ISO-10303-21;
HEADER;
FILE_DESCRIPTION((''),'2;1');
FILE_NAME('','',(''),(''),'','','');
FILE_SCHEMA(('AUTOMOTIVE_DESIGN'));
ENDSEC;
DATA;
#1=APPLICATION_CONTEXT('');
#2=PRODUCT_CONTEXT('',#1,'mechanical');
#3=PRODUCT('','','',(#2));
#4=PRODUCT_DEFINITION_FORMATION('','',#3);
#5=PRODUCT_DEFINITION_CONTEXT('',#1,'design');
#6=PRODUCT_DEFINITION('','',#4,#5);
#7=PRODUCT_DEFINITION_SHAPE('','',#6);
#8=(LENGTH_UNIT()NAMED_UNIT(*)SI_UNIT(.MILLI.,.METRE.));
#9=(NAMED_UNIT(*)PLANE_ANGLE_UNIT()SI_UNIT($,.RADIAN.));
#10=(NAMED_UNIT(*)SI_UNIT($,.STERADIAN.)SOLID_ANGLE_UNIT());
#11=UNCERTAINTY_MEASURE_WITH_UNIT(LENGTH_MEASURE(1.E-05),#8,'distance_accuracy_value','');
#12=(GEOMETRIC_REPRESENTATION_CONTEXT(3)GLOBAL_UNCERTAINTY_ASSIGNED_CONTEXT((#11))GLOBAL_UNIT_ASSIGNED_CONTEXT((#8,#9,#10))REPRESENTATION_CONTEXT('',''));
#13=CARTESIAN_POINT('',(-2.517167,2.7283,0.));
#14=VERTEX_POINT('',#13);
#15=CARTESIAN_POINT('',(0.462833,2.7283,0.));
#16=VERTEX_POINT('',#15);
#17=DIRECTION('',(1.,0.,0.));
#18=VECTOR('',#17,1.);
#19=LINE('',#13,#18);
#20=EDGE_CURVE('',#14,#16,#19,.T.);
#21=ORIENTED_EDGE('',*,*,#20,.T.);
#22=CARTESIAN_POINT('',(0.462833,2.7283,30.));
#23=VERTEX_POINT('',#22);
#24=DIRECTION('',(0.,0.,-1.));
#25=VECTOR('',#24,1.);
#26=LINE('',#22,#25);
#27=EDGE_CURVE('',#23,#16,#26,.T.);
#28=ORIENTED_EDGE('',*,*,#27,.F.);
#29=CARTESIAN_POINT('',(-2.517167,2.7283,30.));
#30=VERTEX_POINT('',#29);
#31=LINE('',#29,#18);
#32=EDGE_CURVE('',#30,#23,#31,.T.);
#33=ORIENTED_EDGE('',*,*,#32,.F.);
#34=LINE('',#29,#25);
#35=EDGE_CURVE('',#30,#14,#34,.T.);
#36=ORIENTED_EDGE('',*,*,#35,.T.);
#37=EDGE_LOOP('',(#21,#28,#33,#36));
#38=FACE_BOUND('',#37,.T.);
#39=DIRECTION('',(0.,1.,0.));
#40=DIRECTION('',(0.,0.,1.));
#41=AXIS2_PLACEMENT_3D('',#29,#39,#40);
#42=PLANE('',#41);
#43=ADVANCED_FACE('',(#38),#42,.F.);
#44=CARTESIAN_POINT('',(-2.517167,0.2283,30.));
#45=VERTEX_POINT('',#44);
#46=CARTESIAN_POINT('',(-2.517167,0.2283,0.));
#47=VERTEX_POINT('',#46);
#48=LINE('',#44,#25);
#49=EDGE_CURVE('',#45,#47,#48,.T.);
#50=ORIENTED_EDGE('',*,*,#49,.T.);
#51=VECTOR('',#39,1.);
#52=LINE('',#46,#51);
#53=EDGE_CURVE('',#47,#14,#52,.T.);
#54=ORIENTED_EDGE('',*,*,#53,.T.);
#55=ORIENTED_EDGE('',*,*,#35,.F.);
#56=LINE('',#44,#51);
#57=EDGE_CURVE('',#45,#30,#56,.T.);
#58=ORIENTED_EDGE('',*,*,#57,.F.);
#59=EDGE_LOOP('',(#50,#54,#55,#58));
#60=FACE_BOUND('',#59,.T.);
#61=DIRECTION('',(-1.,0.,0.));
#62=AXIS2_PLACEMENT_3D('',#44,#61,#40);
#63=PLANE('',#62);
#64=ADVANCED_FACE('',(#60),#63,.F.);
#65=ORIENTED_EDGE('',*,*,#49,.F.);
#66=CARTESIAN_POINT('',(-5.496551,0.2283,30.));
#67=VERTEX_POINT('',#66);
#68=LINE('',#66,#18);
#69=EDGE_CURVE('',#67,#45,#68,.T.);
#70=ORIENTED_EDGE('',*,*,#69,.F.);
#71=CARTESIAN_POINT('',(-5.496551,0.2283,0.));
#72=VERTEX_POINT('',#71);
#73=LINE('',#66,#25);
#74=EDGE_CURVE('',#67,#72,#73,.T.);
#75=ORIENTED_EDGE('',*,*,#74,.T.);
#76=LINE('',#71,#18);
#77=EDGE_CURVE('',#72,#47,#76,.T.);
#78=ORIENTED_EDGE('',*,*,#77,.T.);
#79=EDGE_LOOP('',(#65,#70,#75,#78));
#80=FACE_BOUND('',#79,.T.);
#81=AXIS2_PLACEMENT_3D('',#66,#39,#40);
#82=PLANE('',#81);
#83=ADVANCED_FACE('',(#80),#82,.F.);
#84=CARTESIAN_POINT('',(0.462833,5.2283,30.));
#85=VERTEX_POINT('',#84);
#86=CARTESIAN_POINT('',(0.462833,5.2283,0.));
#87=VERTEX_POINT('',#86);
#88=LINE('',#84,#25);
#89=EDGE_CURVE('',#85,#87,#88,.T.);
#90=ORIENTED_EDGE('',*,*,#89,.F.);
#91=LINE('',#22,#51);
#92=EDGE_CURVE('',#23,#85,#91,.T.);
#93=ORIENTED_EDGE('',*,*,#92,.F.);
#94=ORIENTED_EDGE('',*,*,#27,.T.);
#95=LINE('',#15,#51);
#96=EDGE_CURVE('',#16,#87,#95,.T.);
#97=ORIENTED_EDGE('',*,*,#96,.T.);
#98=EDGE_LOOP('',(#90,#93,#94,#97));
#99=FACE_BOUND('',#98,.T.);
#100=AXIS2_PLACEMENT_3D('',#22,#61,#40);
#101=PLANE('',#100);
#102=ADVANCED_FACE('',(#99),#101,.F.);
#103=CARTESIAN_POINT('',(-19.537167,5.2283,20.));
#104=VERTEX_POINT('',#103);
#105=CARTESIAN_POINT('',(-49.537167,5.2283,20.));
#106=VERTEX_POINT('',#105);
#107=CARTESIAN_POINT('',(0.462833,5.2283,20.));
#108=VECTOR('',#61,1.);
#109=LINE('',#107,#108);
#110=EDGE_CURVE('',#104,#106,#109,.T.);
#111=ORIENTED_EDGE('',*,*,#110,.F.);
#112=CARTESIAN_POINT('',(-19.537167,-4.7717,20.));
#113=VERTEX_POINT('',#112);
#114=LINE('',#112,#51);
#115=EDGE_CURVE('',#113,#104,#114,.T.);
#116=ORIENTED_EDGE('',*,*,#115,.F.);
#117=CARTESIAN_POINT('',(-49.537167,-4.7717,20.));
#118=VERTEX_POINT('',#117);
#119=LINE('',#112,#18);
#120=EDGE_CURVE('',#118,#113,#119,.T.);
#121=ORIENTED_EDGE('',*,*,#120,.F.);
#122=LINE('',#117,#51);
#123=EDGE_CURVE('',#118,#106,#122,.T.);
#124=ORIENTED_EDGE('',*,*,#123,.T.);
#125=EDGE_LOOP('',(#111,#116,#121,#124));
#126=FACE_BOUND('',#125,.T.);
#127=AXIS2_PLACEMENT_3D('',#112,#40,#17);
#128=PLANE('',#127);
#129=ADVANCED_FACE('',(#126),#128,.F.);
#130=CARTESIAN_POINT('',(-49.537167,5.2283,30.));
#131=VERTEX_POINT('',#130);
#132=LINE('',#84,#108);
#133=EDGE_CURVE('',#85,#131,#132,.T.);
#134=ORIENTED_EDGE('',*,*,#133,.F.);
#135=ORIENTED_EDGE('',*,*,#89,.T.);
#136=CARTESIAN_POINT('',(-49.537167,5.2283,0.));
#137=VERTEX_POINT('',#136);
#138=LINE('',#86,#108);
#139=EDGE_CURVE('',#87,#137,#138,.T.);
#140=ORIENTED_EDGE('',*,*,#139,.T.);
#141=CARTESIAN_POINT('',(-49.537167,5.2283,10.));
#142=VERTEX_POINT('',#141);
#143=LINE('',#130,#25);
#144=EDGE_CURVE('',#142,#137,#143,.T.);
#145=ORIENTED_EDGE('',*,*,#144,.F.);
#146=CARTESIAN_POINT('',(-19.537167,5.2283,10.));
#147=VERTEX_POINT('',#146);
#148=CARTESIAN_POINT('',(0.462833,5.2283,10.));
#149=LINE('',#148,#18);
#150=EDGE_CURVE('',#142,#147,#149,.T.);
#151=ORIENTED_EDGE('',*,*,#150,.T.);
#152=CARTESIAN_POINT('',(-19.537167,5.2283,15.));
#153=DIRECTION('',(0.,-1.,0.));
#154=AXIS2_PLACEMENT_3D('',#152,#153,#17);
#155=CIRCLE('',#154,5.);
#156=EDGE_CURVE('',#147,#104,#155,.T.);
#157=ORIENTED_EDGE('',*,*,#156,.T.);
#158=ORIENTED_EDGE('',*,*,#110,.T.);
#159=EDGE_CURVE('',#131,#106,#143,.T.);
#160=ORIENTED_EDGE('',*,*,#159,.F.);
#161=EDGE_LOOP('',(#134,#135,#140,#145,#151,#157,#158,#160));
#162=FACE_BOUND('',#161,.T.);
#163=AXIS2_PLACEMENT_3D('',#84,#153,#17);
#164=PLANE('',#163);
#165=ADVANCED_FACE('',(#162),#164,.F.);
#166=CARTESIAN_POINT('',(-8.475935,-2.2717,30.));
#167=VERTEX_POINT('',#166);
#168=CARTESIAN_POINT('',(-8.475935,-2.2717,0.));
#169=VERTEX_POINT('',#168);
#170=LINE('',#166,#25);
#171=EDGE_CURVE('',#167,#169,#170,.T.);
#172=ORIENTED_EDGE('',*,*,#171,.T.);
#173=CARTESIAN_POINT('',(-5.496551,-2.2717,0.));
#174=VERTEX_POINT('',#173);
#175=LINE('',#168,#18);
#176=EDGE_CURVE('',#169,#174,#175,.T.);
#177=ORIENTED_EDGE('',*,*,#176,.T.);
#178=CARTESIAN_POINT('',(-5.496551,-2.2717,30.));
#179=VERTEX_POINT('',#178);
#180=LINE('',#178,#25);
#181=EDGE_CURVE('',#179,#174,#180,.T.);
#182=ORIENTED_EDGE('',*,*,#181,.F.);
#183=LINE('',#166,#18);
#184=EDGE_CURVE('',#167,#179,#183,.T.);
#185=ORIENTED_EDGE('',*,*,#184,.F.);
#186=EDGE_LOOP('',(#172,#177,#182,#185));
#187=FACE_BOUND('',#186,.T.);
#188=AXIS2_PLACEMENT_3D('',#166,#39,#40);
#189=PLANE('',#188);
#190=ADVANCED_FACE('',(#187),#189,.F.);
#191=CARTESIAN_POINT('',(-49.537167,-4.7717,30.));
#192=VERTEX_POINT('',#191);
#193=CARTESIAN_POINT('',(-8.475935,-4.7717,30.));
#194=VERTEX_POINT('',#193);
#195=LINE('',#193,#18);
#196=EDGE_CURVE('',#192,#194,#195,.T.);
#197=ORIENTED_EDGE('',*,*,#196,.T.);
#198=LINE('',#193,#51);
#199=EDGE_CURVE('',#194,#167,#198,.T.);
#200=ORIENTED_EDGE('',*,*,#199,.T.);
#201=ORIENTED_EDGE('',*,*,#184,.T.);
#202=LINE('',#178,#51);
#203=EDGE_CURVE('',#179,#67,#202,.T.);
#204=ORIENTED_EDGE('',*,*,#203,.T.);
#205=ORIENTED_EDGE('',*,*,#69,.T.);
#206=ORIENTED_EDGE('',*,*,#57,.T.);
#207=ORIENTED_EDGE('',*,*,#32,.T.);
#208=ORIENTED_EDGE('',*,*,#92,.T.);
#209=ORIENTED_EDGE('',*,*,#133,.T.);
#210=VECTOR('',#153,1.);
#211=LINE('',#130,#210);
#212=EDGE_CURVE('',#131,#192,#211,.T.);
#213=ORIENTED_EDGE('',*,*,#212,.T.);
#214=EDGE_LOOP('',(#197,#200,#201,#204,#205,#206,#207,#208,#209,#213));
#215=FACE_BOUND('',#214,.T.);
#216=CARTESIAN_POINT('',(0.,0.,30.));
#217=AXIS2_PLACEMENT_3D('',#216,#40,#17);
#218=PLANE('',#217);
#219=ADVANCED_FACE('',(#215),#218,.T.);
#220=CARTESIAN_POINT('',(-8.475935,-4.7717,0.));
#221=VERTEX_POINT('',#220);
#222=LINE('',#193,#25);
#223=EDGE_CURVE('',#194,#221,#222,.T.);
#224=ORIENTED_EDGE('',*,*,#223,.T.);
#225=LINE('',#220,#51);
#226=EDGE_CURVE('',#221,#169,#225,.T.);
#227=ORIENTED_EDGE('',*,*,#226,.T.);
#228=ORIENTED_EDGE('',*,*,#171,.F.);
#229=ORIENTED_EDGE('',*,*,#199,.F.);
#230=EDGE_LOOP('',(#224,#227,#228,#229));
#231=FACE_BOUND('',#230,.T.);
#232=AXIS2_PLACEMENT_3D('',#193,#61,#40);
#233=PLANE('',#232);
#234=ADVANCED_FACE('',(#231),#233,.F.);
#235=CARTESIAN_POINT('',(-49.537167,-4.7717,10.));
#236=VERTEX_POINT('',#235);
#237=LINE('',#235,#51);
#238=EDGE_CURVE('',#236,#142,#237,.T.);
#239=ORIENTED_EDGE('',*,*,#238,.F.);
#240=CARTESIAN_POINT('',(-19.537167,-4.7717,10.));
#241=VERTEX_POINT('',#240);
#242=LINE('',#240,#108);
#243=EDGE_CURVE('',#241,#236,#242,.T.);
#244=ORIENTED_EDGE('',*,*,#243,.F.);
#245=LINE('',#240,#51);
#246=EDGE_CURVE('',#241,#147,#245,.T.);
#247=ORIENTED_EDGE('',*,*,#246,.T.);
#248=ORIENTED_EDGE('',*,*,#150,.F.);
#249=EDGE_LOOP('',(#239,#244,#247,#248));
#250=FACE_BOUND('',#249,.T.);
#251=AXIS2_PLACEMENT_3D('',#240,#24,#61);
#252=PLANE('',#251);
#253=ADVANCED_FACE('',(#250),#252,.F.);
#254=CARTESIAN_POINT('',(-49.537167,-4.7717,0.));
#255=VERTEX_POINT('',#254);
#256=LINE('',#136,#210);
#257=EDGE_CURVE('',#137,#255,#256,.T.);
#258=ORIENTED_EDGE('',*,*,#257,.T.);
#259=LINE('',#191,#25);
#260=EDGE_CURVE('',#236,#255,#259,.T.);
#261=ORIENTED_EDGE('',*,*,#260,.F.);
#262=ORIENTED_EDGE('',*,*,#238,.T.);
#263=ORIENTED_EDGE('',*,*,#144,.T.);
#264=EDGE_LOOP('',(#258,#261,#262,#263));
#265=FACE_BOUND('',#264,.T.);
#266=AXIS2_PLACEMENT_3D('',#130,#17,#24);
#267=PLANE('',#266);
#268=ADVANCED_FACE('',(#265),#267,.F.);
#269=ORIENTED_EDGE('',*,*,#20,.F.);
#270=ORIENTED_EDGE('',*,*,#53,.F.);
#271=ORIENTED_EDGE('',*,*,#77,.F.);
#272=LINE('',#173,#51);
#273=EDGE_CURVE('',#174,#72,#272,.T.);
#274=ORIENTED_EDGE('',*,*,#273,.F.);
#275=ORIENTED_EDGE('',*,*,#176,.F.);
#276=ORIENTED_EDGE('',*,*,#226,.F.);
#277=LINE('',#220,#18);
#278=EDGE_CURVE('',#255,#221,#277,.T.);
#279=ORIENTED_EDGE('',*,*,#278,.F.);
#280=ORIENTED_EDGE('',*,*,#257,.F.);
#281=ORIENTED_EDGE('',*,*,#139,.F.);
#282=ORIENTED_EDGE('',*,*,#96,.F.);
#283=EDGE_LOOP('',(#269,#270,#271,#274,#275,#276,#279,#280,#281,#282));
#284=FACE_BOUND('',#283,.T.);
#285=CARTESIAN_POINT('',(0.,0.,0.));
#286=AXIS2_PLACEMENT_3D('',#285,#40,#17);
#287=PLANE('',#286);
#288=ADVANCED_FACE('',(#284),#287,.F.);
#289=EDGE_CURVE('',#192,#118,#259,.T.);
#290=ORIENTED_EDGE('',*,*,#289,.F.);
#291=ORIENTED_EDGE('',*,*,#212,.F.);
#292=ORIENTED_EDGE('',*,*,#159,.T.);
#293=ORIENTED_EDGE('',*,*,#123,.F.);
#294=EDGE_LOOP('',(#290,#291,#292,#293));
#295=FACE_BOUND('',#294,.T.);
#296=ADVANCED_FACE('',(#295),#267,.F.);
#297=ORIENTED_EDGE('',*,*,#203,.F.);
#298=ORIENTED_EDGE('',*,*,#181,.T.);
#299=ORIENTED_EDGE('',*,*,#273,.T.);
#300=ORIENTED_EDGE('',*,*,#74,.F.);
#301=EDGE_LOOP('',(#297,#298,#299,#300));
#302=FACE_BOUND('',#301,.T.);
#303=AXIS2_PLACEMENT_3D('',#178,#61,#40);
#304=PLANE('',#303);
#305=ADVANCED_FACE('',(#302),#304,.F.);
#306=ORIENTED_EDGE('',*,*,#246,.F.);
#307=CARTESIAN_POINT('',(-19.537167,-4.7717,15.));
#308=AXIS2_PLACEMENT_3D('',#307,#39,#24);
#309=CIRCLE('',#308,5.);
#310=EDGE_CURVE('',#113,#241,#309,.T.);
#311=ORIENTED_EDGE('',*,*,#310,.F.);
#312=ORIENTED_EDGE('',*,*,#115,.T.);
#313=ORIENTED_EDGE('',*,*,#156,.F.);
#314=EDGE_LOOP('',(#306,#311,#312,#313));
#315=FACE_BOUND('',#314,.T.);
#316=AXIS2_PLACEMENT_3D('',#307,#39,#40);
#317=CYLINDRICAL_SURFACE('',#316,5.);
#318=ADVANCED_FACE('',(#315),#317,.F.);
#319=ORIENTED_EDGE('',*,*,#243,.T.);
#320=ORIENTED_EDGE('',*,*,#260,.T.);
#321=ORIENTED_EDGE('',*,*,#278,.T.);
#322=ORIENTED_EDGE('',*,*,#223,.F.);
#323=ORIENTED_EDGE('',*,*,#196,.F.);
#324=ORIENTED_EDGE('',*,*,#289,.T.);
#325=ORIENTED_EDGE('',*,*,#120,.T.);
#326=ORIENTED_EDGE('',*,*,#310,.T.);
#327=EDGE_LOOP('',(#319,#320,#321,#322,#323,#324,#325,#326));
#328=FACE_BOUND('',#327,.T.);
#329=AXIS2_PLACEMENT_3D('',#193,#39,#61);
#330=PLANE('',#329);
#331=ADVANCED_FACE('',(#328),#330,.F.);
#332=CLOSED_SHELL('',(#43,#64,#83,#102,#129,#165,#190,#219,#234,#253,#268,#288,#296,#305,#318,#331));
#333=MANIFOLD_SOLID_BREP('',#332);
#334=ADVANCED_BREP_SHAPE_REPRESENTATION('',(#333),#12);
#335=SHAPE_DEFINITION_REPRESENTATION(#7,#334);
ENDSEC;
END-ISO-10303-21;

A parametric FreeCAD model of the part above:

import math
import FreeCAD as App
import Part
import Sketcher
from FreeCAD import Vector
Q = App.Units.Quantity

doc = App.newDocument("Part")
body = doc.addObject("PartDesign::Body", "Body")

sketch1 = body.newObject("Sketcher::SketchObject", "Sketch")
sketch1.AttachmentSupport = (doc.getObject("XY_Plane"), [""])
sketch1.MapMode = "FlatFace"
sketch1.addGeometry([
    Part.LineSegment(Vector(-8.5, -4.8, 0), Vector(-8.5, -2.3, 0)),
    Part.LineSegment(Vector(-8.5, -2.3, 0), Vector(-5.5, -2.3, 0)),
    Part.LineSegment(Vector(-5.5, -2.3, 0), Vector(-5.5, 0.2, 0)),
    Part.LineSegment(Vector(-5.5, 0.2, 0), Vector(-2.5, 0.2, 0)),
    Part.LineSegment(Vector(-2.5, 0.2, 0), Vector(-2.5, 2.7, 0)),
    Part.LineSegment(Vector(-2.5, 2.7, 0), Vector(0.5, 2.7, 0)),
    Part.LineSegment(Vector(0.5, 2.7, 0), Vector(0.5, 5.2, 0)),
    Part.LineSegment(Vector(0.5, 5.2, 0), Vector(-49.5, 5.2, 0)),
    Part.LineSegment(Vector(-49.5, 5.2, 0), Vector(-49.5, -4.8, 0)),
    Part.LineSegment(Vector(-49.5, -4.8, 0), Vector(-8.5, -4.8, 0)),
], False)
sketch1.addConstraint([
    Sketcher.Constraint("Coincident", 0, 2, 1, 1),
    Sketcher.Constraint("Coincident", 1, 2, 2, 1),
    Sketcher.Constraint("Coincident", 2, 2, 3, 1),
    Sketcher.Constraint("Coincident", 3, 2, 4, 1),
    Sketcher.Constraint("Coincident", 4, 2, 5, 1),
    Sketcher.Constraint("Coincident", 5, 2, 6, 1),
    Sketcher.Constraint("Coincident", 6, 2, 7, 1),
    Sketcher.Constraint("Coincident", 7, 2, 8, 1),
    Sketcher.Constraint("Coincident", 8, 2, 9, 1),
    Sketcher.Constraint("Coincident", 9, 2, 0, 1),
    Sketcher.Constraint("Vertical", 0),
    Sketcher.Constraint("Horizontal", 1),
    Sketcher.Constraint("Vertical", 2),
    Sketcher.Constraint("Horizontal", 3),
    Sketcher.Constraint("Vertical", 4),
    Sketcher.Constraint("Horizontal", 5),
    Sketcher.Constraint("Vertical", 6),
    Sketcher.Constraint("Horizontal", 7),
    Sketcher.Constraint("Vertical", 8),
    Sketcher.Constraint("Horizontal", 9),
    Sketcher.Constraint("Equal", 1, 3),
    Sketcher.Constraint("Equal", 0, 2),
    Sketcher.Constraint("Equal", 2, 4),
    Sketcher.Constraint("Equal", 4, 6),
    Sketcher.Constraint("DistanceX", 7, 2, 7, 1, Q("50 mm")),
    Sketcher.Constraint("DistanceY", 8, 2, 8, 1, Q("10 mm")),
    Sketcher.Constraint("DistanceX", 5, 1, 5, 2, Q("2.98 mm")),
    Sketcher.Constraint("DistanceY", 0, 2, -1, 1, Q("2.2717 mm")),
    Sketcher.Constraint("DistanceX", 1, 1, 1, 2, Q("2.979384 mm")),
    Sketcher.Constraint("DistanceX", 1, 2, -1, 1, Q("5.496551 mm")),
])
pad1 = body.newObject("PartDesign::Pad", "Pad")
pad1.Profile = sketch1
pad1.Length = 30

sketch2 = body.newObject("Sketcher::SketchObject", "Sketch001")
sketch2.AttachmentSupport = (doc.getObject("XZ_Plane"), [""])
sketch2.MapMode = "FlatFace"
sketch2.AttachmentOffset = App.Placement(Vector(0, 0, 4.7717), App.Rotation())
sketch2.addGeometry([
    Part.ArcOfCircle(Part.Circle(Vector(-20, 15, 0), Vector(0, 0, 1), 5), math.radians(-90), math.radians(90)),
    Part.LineSegment(Vector(-20, 20, 0), Vector(-403, 20, 0)),
    Part.LineSegment(Vector(-403, 20, 0), Vector(-403, 10, 0)),
    Part.LineSegment(Vector(-403, 10, 0), Vector(-20, 10, 0)),
], False)
sketch2.addConstraint([
    Sketcher.Constraint("Tangent", 0, 2, 1, 1),
    Sketcher.Constraint("Coincident", 1, 2, 2, 1),
    Sketcher.Constraint("Coincident", 2, 2, 3, 1),
    Sketcher.Constraint("Tangent", 3, 2, 0, 1),
    Sketcher.Constraint("Horizontal", 1),
    Sketcher.Constraint("Vertical", 2),
    Sketcher.Constraint("Horizontal", 3),
    Sketcher.Constraint("Radius", 0, Q("5 mm")),
    Sketcher.Constraint("DistanceY", -1, 1, 0, 3, Q("15 mm")),
    Sketcher.Constraint("DistanceX", 1, 2, 1, 1, Q("383.109888 mm")),
    Sketcher.Constraint("DistanceX", 0, 3, -1, 1, Q("19.537167 mm")),
])
pocket1 = body.newObject("PartDesign::Pocket", "Pocket")
pocket1.Profile = sketch2
pocket1.Type = "ThroughAll"

doc.recompute()
